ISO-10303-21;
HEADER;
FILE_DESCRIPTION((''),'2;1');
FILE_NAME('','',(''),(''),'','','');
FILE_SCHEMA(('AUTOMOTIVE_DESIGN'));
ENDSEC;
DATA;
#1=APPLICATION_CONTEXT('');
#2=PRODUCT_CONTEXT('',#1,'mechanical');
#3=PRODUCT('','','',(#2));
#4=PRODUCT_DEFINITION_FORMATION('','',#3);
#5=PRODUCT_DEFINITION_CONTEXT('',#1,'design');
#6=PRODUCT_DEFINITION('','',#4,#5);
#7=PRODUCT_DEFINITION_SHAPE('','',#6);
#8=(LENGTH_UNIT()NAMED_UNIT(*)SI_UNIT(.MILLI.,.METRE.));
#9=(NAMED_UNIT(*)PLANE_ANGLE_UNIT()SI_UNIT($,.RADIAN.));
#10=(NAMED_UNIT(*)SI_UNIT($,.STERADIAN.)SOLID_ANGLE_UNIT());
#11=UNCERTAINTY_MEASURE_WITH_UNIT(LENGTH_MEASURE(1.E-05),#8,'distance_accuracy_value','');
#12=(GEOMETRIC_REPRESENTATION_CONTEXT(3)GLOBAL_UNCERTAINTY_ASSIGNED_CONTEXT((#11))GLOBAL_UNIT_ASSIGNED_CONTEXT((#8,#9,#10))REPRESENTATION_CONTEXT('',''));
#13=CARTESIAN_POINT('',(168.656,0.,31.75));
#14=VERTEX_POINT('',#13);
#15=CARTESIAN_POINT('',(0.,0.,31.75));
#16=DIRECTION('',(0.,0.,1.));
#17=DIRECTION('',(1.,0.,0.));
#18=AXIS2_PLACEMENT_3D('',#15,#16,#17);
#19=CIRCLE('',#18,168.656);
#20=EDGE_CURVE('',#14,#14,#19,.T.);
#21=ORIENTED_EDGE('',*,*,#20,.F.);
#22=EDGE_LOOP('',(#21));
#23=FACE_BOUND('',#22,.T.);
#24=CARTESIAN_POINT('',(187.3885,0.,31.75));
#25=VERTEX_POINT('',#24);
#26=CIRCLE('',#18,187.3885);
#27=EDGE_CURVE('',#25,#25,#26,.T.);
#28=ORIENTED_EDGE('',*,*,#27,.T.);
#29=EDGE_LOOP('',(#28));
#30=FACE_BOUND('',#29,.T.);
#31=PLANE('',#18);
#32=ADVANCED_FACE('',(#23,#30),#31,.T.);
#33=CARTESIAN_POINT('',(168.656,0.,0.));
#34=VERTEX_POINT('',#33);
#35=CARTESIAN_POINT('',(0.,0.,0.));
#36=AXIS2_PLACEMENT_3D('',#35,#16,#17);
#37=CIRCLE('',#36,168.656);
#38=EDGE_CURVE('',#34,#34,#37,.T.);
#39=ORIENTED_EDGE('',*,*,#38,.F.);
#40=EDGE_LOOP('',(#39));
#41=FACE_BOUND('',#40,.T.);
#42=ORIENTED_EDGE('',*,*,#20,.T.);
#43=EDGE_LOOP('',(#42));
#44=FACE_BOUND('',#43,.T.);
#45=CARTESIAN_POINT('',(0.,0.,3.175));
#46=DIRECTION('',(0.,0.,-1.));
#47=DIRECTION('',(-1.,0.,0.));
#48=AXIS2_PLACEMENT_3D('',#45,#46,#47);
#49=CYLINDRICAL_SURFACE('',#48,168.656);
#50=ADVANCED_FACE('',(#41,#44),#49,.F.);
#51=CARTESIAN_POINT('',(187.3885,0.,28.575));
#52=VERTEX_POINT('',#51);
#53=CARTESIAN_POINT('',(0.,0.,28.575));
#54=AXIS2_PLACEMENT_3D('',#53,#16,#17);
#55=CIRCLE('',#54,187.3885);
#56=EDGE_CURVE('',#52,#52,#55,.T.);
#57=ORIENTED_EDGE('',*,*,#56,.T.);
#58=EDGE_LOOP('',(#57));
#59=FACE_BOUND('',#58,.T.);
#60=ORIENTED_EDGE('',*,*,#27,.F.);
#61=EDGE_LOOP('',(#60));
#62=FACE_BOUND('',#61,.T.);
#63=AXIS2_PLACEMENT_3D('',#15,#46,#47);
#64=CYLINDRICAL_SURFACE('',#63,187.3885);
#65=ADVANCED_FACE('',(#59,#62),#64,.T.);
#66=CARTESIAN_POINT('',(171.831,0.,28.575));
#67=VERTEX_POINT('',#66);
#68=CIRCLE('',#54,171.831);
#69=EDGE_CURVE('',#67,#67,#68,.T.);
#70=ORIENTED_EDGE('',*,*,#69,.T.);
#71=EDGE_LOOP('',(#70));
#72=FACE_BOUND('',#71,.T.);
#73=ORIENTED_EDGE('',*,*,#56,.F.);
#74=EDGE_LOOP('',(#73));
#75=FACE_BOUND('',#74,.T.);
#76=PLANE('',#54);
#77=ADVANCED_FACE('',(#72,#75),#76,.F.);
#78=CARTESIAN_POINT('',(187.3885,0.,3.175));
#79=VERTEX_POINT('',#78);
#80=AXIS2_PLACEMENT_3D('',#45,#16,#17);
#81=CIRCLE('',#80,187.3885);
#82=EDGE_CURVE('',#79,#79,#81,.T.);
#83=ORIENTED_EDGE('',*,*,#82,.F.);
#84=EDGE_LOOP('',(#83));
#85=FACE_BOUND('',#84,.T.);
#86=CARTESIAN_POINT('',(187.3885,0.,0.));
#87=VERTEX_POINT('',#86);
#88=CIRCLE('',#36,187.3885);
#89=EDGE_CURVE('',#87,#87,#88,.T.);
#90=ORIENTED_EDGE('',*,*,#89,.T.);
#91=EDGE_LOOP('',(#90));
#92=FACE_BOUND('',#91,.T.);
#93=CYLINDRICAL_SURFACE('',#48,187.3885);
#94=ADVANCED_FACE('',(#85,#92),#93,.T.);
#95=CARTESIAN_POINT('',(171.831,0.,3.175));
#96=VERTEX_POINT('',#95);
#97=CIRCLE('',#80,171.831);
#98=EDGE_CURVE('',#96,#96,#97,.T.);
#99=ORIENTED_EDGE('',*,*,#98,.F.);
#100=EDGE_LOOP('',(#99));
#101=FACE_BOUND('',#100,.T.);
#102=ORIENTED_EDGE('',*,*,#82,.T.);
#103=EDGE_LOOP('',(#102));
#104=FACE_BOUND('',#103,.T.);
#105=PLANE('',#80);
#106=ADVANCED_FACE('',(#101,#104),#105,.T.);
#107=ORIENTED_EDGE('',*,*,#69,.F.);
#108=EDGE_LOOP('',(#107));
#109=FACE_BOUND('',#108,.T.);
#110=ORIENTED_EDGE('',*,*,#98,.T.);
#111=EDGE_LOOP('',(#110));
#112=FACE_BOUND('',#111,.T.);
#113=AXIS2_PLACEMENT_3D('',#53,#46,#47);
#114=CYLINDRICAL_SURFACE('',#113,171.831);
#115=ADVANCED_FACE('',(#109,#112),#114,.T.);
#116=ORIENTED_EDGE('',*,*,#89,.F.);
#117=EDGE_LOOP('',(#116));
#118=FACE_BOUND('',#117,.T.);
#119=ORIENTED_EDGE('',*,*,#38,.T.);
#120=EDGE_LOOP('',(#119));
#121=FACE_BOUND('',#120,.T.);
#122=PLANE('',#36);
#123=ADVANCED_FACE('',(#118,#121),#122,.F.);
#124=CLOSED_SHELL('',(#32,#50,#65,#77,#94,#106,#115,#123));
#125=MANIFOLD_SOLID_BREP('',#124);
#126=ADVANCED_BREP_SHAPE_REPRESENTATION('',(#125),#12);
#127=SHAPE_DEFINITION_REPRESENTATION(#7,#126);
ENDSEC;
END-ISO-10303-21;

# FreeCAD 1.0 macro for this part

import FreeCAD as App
import Part
import Sketcher
from FreeCAD import Vector
Q = App.Units.Quantity

doc = App.newDocument("Part")
body = doc.addObject("PartDesign::Body", "Body")

sketch1 = doc.addObject("Sketcher::SketchObject", "Sketch")
body.addObject(sketch1)
sketch1.AttachmentSupport = (doc.XY_Plane, [""])
sketch1.MapMode = "FlatFace"
sketch1.addGeometry([
    Part.Circle(Vector(0, 0, 0), Vector(0, 0, 1), 187),
    Part.Circle(Vector(0, 0, 0), Vector(0, 0, 1), 169),
], False)
sketch1.addConstraint([
    Sketcher.Constraint("Coincident", 0, 3, -1, 1),
    Sketcher.Constraint("Coincident", 1, 3, -1, 1),
    Sketcher.Constraint("Diameter", 1, Q("13.28 in")),
    Sketcher.Constraint("Diameter", 0, Q("14.755 in")),
])
pad1 = doc.addObject("PartDesign::Pad", "Pad")
body.addObject(pad1)
pad1.Profile = sketch1
pad1.Length = Q("0.125 in")

sketch2 = doc.addObject("Sketcher::SketchObject", "Sketch001")
body.addObject(sketch2)
sketch2.AttachmentSupport = (doc.XY_Plane, [""])
sketch2.MapMode = "FlatFace"
sketch2.AttachmentOffset = App.Placement(Vector(0, 0, 0.125 * 25.4), App.Rotation())
sketch2.addGeometry([
    Part.Circle(Vector(0, 0, 0), Vector(0, 0, 1), 172),
    Part.Circle(Vector(0, 0, 0), Vector(0, 0, 1), 169),
], False)
sketch2.addConstraint([
    Sketcher.Constraint("Coincident", 0, 3, -1, 1),
    Sketcher.Constraint("Coincident", 1, 3, -1, 1),
    Sketcher.Constraint("Diameter", 0, Q("13.53 in")),
    Sketcher.Constraint("Diameter", 1, Q("13.28 in")),
])
pad2 = doc.addObject("PartDesign::Pad", "Pad001")
body.addObject(pad2)
pad2.Profile = sketch2
pad2.Length = Q("1 in")

sketch3 = doc.addObject("Sketcher::SketchObject", "Sketch002")
body.addObject(sketch3)
sketch3.AttachmentSupport = (doc.XY_Plane, [""])
sketch3.MapMode = "FlatFace"
sketch3.AttachmentOffset = App.Placement(Vector(0, 0, 1.125 * 25.4), App.Rotation())
sketch3.addGeometry([
    Part.Circle(Vector(0, 0, 0), Vector(0, 0, 1), 187),
    Part.Circle(Vector(0, 0, 0), Vector(0, 0, 1), 169),
], False)
sketch3.addConstraint([
    Sketcher.Constraint("Coincident", 0, 3, -1, 1),
    Sketcher.Constraint("Coincident", 1, 3, -1, 1),
    Sketcher.Constraint("Diameter", 1, Q("13.28 in")),
    Sketcher.Constraint("Diameter", 0, Q("14.755 in")),
])
pad3 = doc.addObject("PartDesign::Pad", "Pad002")
body.addObject(pad3)
pad3.Profile = sketch3
pad3.Length = Q("0.125 in")

doc.recompute()
